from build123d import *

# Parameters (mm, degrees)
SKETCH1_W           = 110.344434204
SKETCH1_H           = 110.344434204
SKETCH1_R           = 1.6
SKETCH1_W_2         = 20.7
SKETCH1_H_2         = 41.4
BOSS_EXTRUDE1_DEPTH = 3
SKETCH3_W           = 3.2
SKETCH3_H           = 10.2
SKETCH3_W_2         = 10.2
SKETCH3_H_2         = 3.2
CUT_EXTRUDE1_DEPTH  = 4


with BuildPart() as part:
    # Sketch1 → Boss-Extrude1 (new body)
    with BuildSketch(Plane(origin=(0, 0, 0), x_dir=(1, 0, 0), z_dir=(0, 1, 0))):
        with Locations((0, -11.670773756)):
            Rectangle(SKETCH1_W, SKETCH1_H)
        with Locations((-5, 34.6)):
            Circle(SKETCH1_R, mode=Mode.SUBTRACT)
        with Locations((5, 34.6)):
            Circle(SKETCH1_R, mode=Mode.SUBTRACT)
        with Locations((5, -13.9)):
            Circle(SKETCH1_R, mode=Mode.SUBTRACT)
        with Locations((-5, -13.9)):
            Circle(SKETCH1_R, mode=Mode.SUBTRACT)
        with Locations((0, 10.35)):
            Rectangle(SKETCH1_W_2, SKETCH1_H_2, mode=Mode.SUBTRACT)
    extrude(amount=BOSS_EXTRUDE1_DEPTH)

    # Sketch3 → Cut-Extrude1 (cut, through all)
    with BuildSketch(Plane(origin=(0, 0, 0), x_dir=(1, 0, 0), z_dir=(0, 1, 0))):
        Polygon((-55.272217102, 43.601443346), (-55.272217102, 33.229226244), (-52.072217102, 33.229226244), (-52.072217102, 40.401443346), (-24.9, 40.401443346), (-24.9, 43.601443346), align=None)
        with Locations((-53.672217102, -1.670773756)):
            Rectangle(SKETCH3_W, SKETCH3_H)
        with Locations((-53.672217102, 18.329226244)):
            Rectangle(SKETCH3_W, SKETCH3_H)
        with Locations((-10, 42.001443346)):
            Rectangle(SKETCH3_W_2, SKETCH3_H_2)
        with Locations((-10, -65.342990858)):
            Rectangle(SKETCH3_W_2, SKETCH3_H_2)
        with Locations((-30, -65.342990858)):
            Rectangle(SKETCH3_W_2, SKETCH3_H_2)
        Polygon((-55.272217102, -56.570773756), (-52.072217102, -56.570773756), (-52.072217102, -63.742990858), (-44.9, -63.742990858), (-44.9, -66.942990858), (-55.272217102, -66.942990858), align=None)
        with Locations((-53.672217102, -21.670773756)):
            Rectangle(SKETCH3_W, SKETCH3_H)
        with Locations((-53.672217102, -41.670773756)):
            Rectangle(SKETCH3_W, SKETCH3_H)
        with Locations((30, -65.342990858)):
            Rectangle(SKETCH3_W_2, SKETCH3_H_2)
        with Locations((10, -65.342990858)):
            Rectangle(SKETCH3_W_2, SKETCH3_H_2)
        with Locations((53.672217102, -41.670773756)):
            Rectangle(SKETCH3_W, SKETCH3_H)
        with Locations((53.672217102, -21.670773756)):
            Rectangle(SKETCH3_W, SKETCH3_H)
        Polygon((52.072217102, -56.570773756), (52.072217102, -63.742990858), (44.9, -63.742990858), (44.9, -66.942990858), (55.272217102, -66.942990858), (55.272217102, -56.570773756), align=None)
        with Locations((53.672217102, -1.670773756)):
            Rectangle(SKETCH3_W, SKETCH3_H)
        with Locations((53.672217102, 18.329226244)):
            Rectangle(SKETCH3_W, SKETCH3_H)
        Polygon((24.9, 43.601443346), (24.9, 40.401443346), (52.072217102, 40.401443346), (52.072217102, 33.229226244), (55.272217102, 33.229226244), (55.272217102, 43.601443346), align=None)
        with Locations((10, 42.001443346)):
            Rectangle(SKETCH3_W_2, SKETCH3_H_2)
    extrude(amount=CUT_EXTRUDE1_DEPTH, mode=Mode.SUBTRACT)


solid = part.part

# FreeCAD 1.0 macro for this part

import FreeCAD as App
import Part
import Sketcher
Q = App.Units.Quantity

doc = App.newDocument("Part")
params = doc.addObject("Spreadsheet::Sheet", "Params")
for row, (alias, value) in enumerate([
    ("sketch1_diameter", "3.2 mm"),
    ("sketch1_width", "20.7 mm"),
    ("sketch1_height", "41.4 mm"),
    ("pad1_length", "3 mm"),
    ("sketch2_width", "3.2 mm"),
    ("sketch2_width2", "10.2 mm"),
], start=1):
    params.set(f"A{row}", alias)
    params.set(f"B{row}", "=" + value)
    params.setAlias(f"B{row}", alias)

body = doc.addObject("PartDesign::Body", "Body")

# Sketch on XZ plane
sketch1 = body.newObject("Sketcher::SketchObject", "Sketch")
sketch1.AttachmentSupport = (doc.getObject("XZ_Plane"), [""])
sketch1.MapMode = "FlatFace"
sketch1.addGeometry([
    Part.LineSegment(App.Vector(-55.172217, -43.501443, 0), App.Vector(-55.172217, 66.842991, 0)),  # 0
    Part.LineSegment(App.Vector(-55.172217, 66.842991, 0), App.Vector(55.172217, 66.842991, 0)),  # 1
    Part.LineSegment(App.Vector(55.172217, 66.842991, 0), App.Vector(55.172217, -43.501443, 0)),  # 2
    Part.LineSegment(App.Vector(55.172217, -43.501443, 0), App.Vector(-55.172217, -43.501443, 0)),  # 3
    Part.Circle(App.Vector(-5, 13.9, 0), App.Vector(0, 0, 1), 1.6),  # 4
    Part.Circle(App.Vector(5, 13.9, 0), App.Vector(0, 0, 1), 1.6),  # 5
    Part.Circle(App.Vector(-5, -34.6, 0), App.Vector(0, 0, 1), 1.6),  # 6
    Part.LineSegment(App.Vector(10.35, 10.35, 0), App.Vector(-10.35, 10.35, 0)),  # 7
    Part.LineSegment(App.Vector(-10.35, 10.35, 0), App.Vector(-10.35, -31.05, 0)),  # 8
    Part.LineSegment(App.Vector(-10.35, -31.05, 0), App.Vector(10.35, -31.05, 0)),  # 9
    Part.LineSegment(App.Vector(10.35, -31.05, 0), App.Vector(10.35, 10.35, 0)),  # 10
    Part.Circle(App.Vector(5, -34.6, 0), App.Vector(0, 0, 1), 1.6),  # 11
], False)
sketch1.addConstraint([
    Sketcher.Constraint("Coincident", 0, 2, 1, 1),
    Sketcher.Constraint("Coincident", 1, 2, 2, 1),
    Sketcher.Constraint("Coincident", 2, 2, 3, 1),
    Sketcher.Constraint("Coincident", 3, 2, 0, 1),
    Sketcher.Constraint("Coincident", 7, 2, 8, 1),
    Sketcher.Constraint("Coincident", 8, 2, 9, 1),
    Sketcher.Constraint("Coincident", 9, 2, 10, 1),
    Sketcher.Constraint("Coincident", 10, 2, 7, 1),
    Sketcher.Constraint("Vertical", 0),
    Sketcher.Constraint("Horizontal", 1),
    Sketcher.Constraint("Vertical", 2),
    Sketcher.Constraint("Horizontal", 3),
    Sketcher.Constraint("Horizontal", 7),
    Sketcher.Constraint("Vertical", 8),
    Sketcher.Constraint("Horizontal", 9),
    Sketcher.Constraint("Vertical", 10),
    Sketcher.Constraint("Equal", 4, 5),
    Sketcher.Constraint("Equal", 5, 6),
    Sketcher.Constraint("Equal", 6, 11),
    Sketcher.Constraint("Symmetric", 4, 3, 5, 3, -2),
    Sketcher.Constraint("Symmetric", 6, 3, 11, 3, -2),
    Sketcher.Constraint("Vertical", 4, 3, 6, 3),
    Sketcher.Constraint("Equal", 3, 0),
    Sketcher.Constraint("Diameter", 4, Q("3.2 mm")),
    Sketcher.Constraint("DistanceX", 7, 2, 7, 1, Q("20.7 mm")),
    Sketcher.Constraint("DistanceY", 8, 2, 8, 1, Q("41.4 mm")),
    Sketcher.Constraint("DistanceX", 4, 3, -1, 1, Q("5 mm")),
    Sketcher.Constraint("DistanceY", -1, 1, 4, 3, Q("13.9 mm")),
    Sketcher.Constraint("DistanceY", 6, 3, -1, 1, Q("34.6 mm")),
    Sketcher.Constraint("DistanceX", 7, 2, -1, 1, Q("10.35 mm")),
    Sketcher.Constraint("DistanceY", -1, 1, 7, 2, Q("10.35 mm")),
    Sketcher.Constraint("DistanceX", 1, 1, 1, 2, Q("110.344434 mm")),
    Sketcher.Constraint("DistanceY", -1, 1, 0, 2, Q("66.842991 mm")),
    Sketcher.Constraint("DistanceX", 0, 2, -1, 1, Q("55.172217 mm")),
])
sketch1.setExpression("Constraints[23]", "Params.sketch1_diameter")
sketch1.setExpression("Constraints[24]", "Params.sketch1_width")
sketch1.setExpression("Constraints[25]", "Params.sketch1_height")
pad1 = body.newObject("PartDesign::Pad", "Pad")
pad1.Profile = sketch1
pad1.setExpression("Length", "Params.pad1_length")
pad1.Reversed = True

# Sketch on XZ plane
sketch2 = body.newObject("Sketcher::SketchObject", "Sketch001")
sketch2.AttachmentSupport = (doc.getObject("XZ_Plane"), [""])
sketch2.MapMode = "FlatFace"
sketch2.addGeometry([
    Part.LineSegment(App.Vector(-55.272217, -43.601443, 0), App.Vector(-55.272217, -33.229226, 0)),  # 0
    Part.LineSegment(App.Vector(-55.272217, -33.229226, 0), App.Vector(-52.072217, -33.229226, 0)),  # 1
    Part.LineSegment(App.Vector(-52.072217, -33.229226, 0), App.Vector(-52.072217, -40.401443, 0)),  # 2
    Part.LineSegment(App.Vector(-52.072217, -40.401443, 0), App.Vector(-24.9, -40.401443, 0)),  # 3
    Part.LineSegment(App.Vector(-24.9, -40.401443, 0), App.Vector(-24.9, -43.601443, 0)),  # 4
    Part.LineSegment(App.Vector(-24.9, -43.601443, 0), App.Vector(-55.272217, -43.601443, 0)),  # 5
    Part.LineSegment(App.Vector(-55.272217, -3.429226, 0), App.Vector(-55.272217, 6.770774, 0)),  # 6
    Part.LineSegment(App.Vector(-55.272217, 6.770774, 0), App.Vector(-52.072217, 6.770774, 0)),  # 7
    Part.LineSegment(App.Vector(-52.072217, 6.770774, 0), App.Vector(-52.072217, -3.429226, 0)),  # 8
    Part.LineSegment(App.Vector(-52.072217, -3.429226, 0), App.Vector(-55.272217, -3.429226, 0)),  # 9
    Part.LineSegment(App.Vector(-55.272217, -23.429226, 0), App.Vector(-55.272217, -13.229226, 0)),  # 10
    Part.LineSegment(App.Vector(-55.272217, -13.229226, 0), App.Vector(-52.072217, -13.229226, 0)),  # 11
    Part.LineSegment(App.Vector(-52.072217, -13.229226, 0), App.Vector(-52.072217, -23.429226, 0)),  # 12
    Part.LineSegment(App.Vector(-52.072217, -23.429226, 0), App.Vector(-55.272217, -23.429226, 0)),  # 13
    Part.LineSegment(App.Vector(-15.1, -43.601443, 0), App.Vector(-15.1, -40.401443, 0)),  # 14
    Part.LineSegment(App.Vector(-15.1, -40.401443, 0), App.Vector(-4.9, -40.401443, 0)),  # 15
    Part.LineSegment(App.Vector(-4.9, -40.401443, 0), App.Vector(-4.9, -43.601443, 0)),  # 16
    Part.LineSegment(App.Vector(-4.9, -43.601443, 0), App.Vector(-15.1, -43.601443, 0)),  # 17
    Part.LineSegment(App.Vector(-15.1, 63.742991, 0), App.Vector(-15.1, 66.942991, 0)),  # 18
    Part.LineSegment(App.Vector(-15.1, 66.942991, 0), App.Vector(-4.9, 66.942991, 0)),  # 19
    Part.LineSegment(App.Vector(-4.9, 66.942991, 0), App.Vector(-4.9, 63.742991, 0)),  # 20
    Part.LineSegment(App.Vector(-4.9, 63.742991, 0), App.Vector(-15.1, 63.742991, 0)),  # 21
    Part.LineSegment(App.Vector(-35.1, 63.742991, 0), App.Vector(-35.1, 66.942991, 0)),  # 22
    Part.LineSegment(App.Vector(-35.1, 66.942991, 0), App.Vector(-24.9, 66.942991, 0)),  # 23
    Part.LineSegment(App.Vector(-24.9, 66.942991, 0), App.Vector(-24.9, 63.742991, 0)),  # 24
    Part.LineSegment(App.Vector(-24.9, 63.742991, 0), App.Vector(-35.1, 63.742991, 0)),  # 25
    Part.LineSegment(App.Vector(-52.072217, 56.570774, 0), App.Vector(-55.272217, 56.570774, 0)),  # 26
    Part.LineSegment(App.Vector(-55.272217, 56.570774, 0), App.Vector(-55.272217, 66.942991, 0)),  # 27
    Part.LineSegment(App.Vector(-55.272217, 66.942991, 0), App.Vector(-44.9, 66.942991, 0)),  # 28
    Part.LineSegment(App.Vector(-44.9, 66.942991, 0), App.Vector(-44.9, 63.742991, 0)),  # 29
    Part.LineSegment(App.Vector(-44.9, 63.742991, 0), App.Vector(-52.072217, 63.742991, 0)),  # 30
    Part.LineSegment(App.Vector(-52.072217, 63.742991, 0), App.Vector(-52.072217, 56.570774, 0)),  # 31
    Part.LineSegment(App.Vector(-55.272217, 16.570774, 0), App.Vector(-55.272217, 26.770774, 0)),  # 32
    Part.LineSegment(App.Vector(-55.272217, 26.770774, 0), App.Vector(-52.072217, 26.770774, 0)),  # 33
    Part.LineSegment(App.Vector(-52.072217, 26.770774, 0), App.Vector(-52.072217, 16.570774, 0)),  # 34
    Part.LineSegment(App.Vector(-52.072217, 16.570774, 0), App.Vector(-55.272217, 16.570774, 0)),  # 35
    Part.LineSegment(App.Vector(-55.272217, 36.570774, 0), App.Vector(-55.272217, 46.770774, 0)),  # 36
    Part.LineSegment(App.Vector(-55.272217, 46.770774, 0), App.Vector(-52.072217, 46.770774, 0)),  # 37
    Part.LineSegment(App.Vector(-52.072217, 46.770774, 0), App.Vector(-52.072217, 36.570774, 0)),  # 38
    Part.LineSegment(App.Vector(-52.072217, 36.570774, 0), App.Vector(-55.272217, 36.570774, 0)),  # 39
    Part.LineSegment(App.Vector(24.9, 63.742991, 0), App.Vector(24.9, 66.942991, 0)),  # 40
    Part.LineSegment(App.Vector(24.9, 66.942991, 0), App.Vector(35.1, 66.942991, 0)),  # 41
    Part.LineSegment(App.Vector(35.1, 66.942991, 0), App.Vector(35.1, 63.742991, 0)),  # 42
    Part.LineSegment(App.Vector(35.1, 63.742991, 0), App.Vector(24.9, 63.742991, 0)),  # 43
    Part.LineSegment(App.Vector(4.9, 63.742991, 0), App.Vector(4.9, 66.942991, 0)),  # 44
    Part.LineSegment(App.Vector(4.9, 66.942991, 0), App.Vector(15.1, 66.942991, 0)),  # 45
    Part.LineSegment(App.Vector(15.1, 66.942991, 0), App.Vector(15.1, 63.742991, 0)),  # 46
    Part.LineSegment(App.Vector(15.1, 63.742991, 0), App.Vector(4.9, 63.742991, 0)),  # 47
    Part.LineSegment(App.Vector(52.072217, 36.570774, 0), App.Vector(52.072217, 46.770774, 0)),  # 48
    Part.LineSegment(App.Vector(52.072217, 46.770774, 0), App.Vector(55.272217, 46.770774, 0)),  # 49
    Part.LineSegment(App.Vector(55.272217, 46.770774, 0), App.Vector(55.272217, 36.570774, 0)),  # 50
    Part.LineSegment(App.Vector(55.272217, 36.570774, 0), App.Vector(52.072217, 36.570774, 0)),  # 51
    Part.LineSegment(App.Vector(52.072217, 16.570774, 0), App.Vector(52.072217, 26.770774, 0)),  # 52
    Part.LineSegment(App.Vector(52.072217, 26.770774, 0), App.Vector(55.272217, 26.770774, 0)),  # 53
    Part.LineSegment(App.Vector(55.272217, 26.770774, 0), App.Vector(55.272217, 16.570774, 0)),  # 54
    Part.LineSegment(App.Vector(55.272217, 16.570774, 0), App.Vector(52.072217, 16.570774, 0)),  # 55
    Part.LineSegment(App.Vector(52.072217, 56.570774, 0), App.Vector(52.072217, 63.742991, 0)),  # 56
    Part.LineSegment(App.Vector(52.072217, 63.742991, 0), App.Vector(44.9, 63.742991, 0)),  # 57
    Part.LineSegment(App.Vector(44.9, 63.742991, 0), App.Vector(44.9, 66.942991, 0)),  # 58
    Part.LineSegment(App.Vector(44.9, 66.942991, 0), App.Vector(55.272217, 66.942991, 0)),  # 59
    Part.LineSegment(App.Vector(55.272217, 66.942991, 0), App.Vector(55.272217, 56.570774, 0)),  # 60
    Part.LineSegment(App.Vector(55.272217, 56.570774, 0), App.Vector(52.072217, 56.570774, 0)),  # 61
    Part.LineSegment(App.Vector(52.072217, -3.429226, 0), App.Vector(52.072217, 6.770774, 0)),  # 62
    Part.LineSegment(App.Vector(52.072217, 6.770774, 0), App.Vector(55.272217, 6.770774, 0)),  # 63
    Part.LineSegment(App.Vector(55.272217, 6.770774, 0), App.Vector(55.272217, -3.429226, 0)),  # 64
    Part.LineSegment(App.Vector(55.272217, -3.429226, 0), App.Vector(52.072217, -3.429226, 0)),  # 65
    Part.LineSegment(App.Vector(52.072217, -23.429226, 0), App.Vector(52.072217, -13.229226, 0)),  # 66
    Part.LineSegment(App.Vector(52.072217, -13.229226, 0), App.Vector(55.272217, -13.229226, 0)),  # 67
    Part.LineSegment(App.Vector(55.272217, -13.229226, 0), App.Vector(55.272217, -23.429226, 0)),  # 68
    Part.LineSegment(App.Vector(55.272217, -23.429226, 0), App.Vector(52.072217, -23.429226, 0)),  # 69
    Part.LineSegment(App.Vector(24.9, -43.601443, 0), App.Vector(24.9, -40.401443, 0)),  # 70
    Part.LineSegment(App.Vector(24.9, -40.401443, 0), App.Vector(52.072217, -40.401443, 0)),  # 71
    Part.LineSegment(App.Vector(52.072217, -40.401443, 0), App.Vector(52.072217, -33.229226, 0)),  # 72
    Part.LineSegment(App.Vector(52.072217, -33.229226, 0), App.Vector(55.272217, -33.229226, 0)),  # 73
    Part.LineSegment(App.Vector(55.272217, -33.229226, 0), App.Vector(55.272217, -43.601443, 0)),  # 74
    Part.LineSegment(App.Vector(55.272217, -43.601443, 0), App.Vector(24.9, -43.601443, 0)),  # 75
    Part.LineSegment(App.Vector(4.9, -43.601443, 0), App.Vector(4.9, -40.401443, 0)),  # 76
    Part.LineSegment(App.Vector(4.9, -40.401443, 0), App.Vector(15.1, -40.401443, 0)),  # 77
    Part.LineSegment(App.Vector(15.1, -40.401443, 0), App.Vector(15.1, -43.601443, 0)),  # 78
    Part.LineSegment(App.Vector(15.1, -43.601443, 0), App.Vector(4.9, -43.601443, 0)),  # 79
], False)
sketch2.addConstraint([
    Sketcher.Constraint("Coincident", 0, 2, 1, 1),
    Sketcher.Constraint("Coincident", 1, 2, 2, 1),
    Sketcher.Constraint("Coincident", 2, 2, 3, 1),
    Sketcher.Constraint("Coincident", 3, 2, 4, 1),
    Sketcher.Constraint("Coincident", 4, 2, 5, 1),
    Sketcher.Constraint("Coincident", 5, 2, 0, 1),
    Sketcher.Constraint("Coincident", 6, 2, 7, 1),
    Sketcher.Constraint("Coincident", 7, 2, 8, 1),
    Sketcher.Constraint("Coincident", 8, 2, 9, 1),
    Sketcher.Constraint("Coincident", 9, 2, 6, 1),
    Sketcher.Constraint("Coincident", 10, 2, 11, 1),
    Sketcher.Constraint("Coincident", 11, 2, 12, 1),
    Sketcher.Constraint("Coincident", 12, 2, 13, 1),
    Sketcher.Constraint("Coincident", 13, 2, 10, 1),
    Sketcher.Constraint("Coincident", 14, 2, 15, 1),
    Sketcher.Constraint("Coincident", 15, 2, 16, 1),
    Sketcher.Constraint("Coincident", 16, 2, 17, 1),
    Sketcher.Constraint("Coincident", 17, 2, 14, 1),
    Sketcher.Constraint("Coincident", 18, 2, 19, 1),
    Sketcher.Constraint("Coincident", 19, 2, 20, 1),
    Sketcher.Constraint("Coincident", 20, 2, 21, 1),
    Sketcher.Constraint("Coincident", 21, 2, 18, 1),
    Sketcher.Constraint("Coincident", 22, 2, 23, 1),
    Sketcher.Constraint("Coincident", 23, 2, 24, 1),
    Sketcher.Constraint("Coincident", 24, 2, 25, 1),
    Sketcher.Constraint("Coincident", 25, 2, 22, 1),
    Sketcher.Constraint("Coincident", 26, 2, 27, 1),
    Sketcher.Constraint("Coincident", 27, 2, 28, 1),
    Sketcher.Constraint("Coincident", 28, 2, 29, 1),
    Sketcher.Constraint("Coincident", 29, 2, 30, 1),
    Sketcher.Constraint("Coincident", 30, 2, 31, 1),
    Sketcher.Constraint("Coincident", 31, 2, 26, 1),
    Sketcher.Constraint("Coincident", 32, 2, 33, 1),
    Sketcher.Constraint("Coincident", 33, 2, 34, 1),
    Sketcher.Constraint("Coincident", 34, 2, 35, 1),
    Sketcher.Constraint("Coincident", 35, 2, 32, 1),
    Sketcher.Constraint("Coincident", 36, 2, 37, 1),
    Sketcher.Constraint("Coincident", 37, 2, 38, 1),
    Sketcher.Constraint("Coincident", 38, 2, 39, 1),
    Sketcher.Constraint("Coincident", 39, 2, 36, 1),
    Sketcher.Constraint("Coincident", 40, 2, 41, 1),
    Sketcher.Constraint("Coincident", 41, 2, 42, 1),
    Sketcher.Constraint("Coincident", 42, 2, 43, 1),
    Sketcher.Constraint("Coincident", 43, 2, 40, 1),
    Sketcher.Constraint("Coincident", 44, 2, 45, 1),
    Sketcher.Constraint("Coincident", 45, 2, 46, 1),
    Sketcher.Constraint("Coincident", 46, 2, 47, 1),
    Sketcher.Constraint("Coincident", 47, 2, 44, 1),
    Sketcher.Constraint("Coincident", 48, 2, 49, 1),
    Sketcher.Constraint("Coincident", 49, 2, 50, 1),
    Sketcher.Constraint("Coincident", 50, 2, 51, 1),
    Sketcher.Constraint("Coincident", 51, 2, 48, 1),
    Sketcher.Constraint("Coincident", 52, 2, 53, 1),
    Sketcher.Constraint("Coincident", 53, 2, 54, 1),
    Sketcher.Constraint("Coincident", 54, 2, 55, 1),
    Sketcher.Constraint("Coincident", 55, 2, 52, 1),
    Sketcher.Constraint("Coincident", 56, 2, 57, 1),
    Sketcher.Constraint("Coincident", 57, 2, 58, 1),
    Sketcher.Constraint("Coincident", 58, 2, 59, 1),
    Sketcher.Constraint("Coincident", 59, 2, 60, 1),
    Sketcher.Constraint("Coincident", 60, 2, 61, 1),
    Sketcher.Constraint("Coincident", 61, 2, 56, 1),
    Sketcher.Constraint("Coincident", 62, 2, 63, 1),
    Sketcher.Constraint("Coincident", 63, 2, 64, 1),
    Sketcher.Constraint("Coincident", 64, 2, 65, 1),
    Sketcher.Constraint("Coincident", 65, 2, 62, 1),
    Sketcher.Constraint("Coincident", 66, 2, 67, 1),
    Sketcher.Constraint("Coincident", 67, 2, 68, 1),
    Sketcher.Constraint("Coincident", 68, 2, 69, 1),
    Sketcher.Constraint("Coincident", 69, 2, 66, 1),
    Sketcher.Constraint("Coincident", 70, 2, 71, 1),
    Sketcher.Constraint("Coincident", 71, 2, 72, 1),
    Sketcher.Constraint("Coincident", 72, 2, 73, 1),
    Sketcher.Constraint("Coincident", 73, 2, 74, 1),
    Sketcher.Constraint("Coincident", 74, 2, 75, 1),
    Sketcher.Constraint("Coincident", 75, 2, 70, 1),
    Sketcher.Constraint("Coincident", 76, 2, 77, 1),
    Sketcher.Constraint("Coincident", 77, 2, 78, 1),
    Sketcher.Constraint("Coincident", 78, 2, 79, 1),
    Sketcher.Constraint("Coincident", 79, 2, 76, 1),
    Sketcher.Constraint("Vertical", 0),
    Sketcher.Constraint("Horizontal", 1),
    Sketcher.Constraint("Vertical", 2),
    Sketcher.Constraint("Horizontal", 3),
    Sketcher.Constraint("Vertical", 4),
    Sketcher.Constraint("Horizontal", 5),
    Sketcher.Constraint("Vertical", 6),
    Sketcher.Constraint("Horizontal", 7),
    Sketcher.Constraint("Vertical", 8),
    Sketcher.Constraint("Horizontal", 9),
    Sketcher.Constraint("Vertical", 10),
    Sketcher.Constraint("Horizontal", 11),
    Sketcher.Constraint("Vertical", 12),
    Sketcher.Constraint("Horizontal", 13),
    Sketcher.Constraint("Vertical", 14),
    Sketcher.Constraint("Horizontal", 15),
    Sketcher.Constraint("Vertical", 16),
    Sketcher.Constraint("Horizontal", 17),
    Sketcher.Constraint("Vertical", 18),
    Sketcher.Constraint("Horizontal", 19),
    Sketcher.Constraint("Vertical", 20),
    Sketcher.Constraint("Horizontal", 21),
    Sketcher.Constraint("Vertical", 22),
    Sketcher.Constraint("Horizontal", 23),
    Sketcher.Constraint("Vertical", 24),
    Sketcher.Constraint("Horizontal", 25),
    Sketcher.Constraint("Horizontal", 26),
    Sketcher.Constraint("Vertical", 27),
    Sketcher.Constraint("Horizontal", 28),
    Sketcher.Constraint("Vertical", 29),
    Sketcher.Constraint("Horizontal", 30),
    Sketcher.Constraint("Vertical", 31),
    Sketcher.Constraint("Vertical", 32),
    Sketcher.Constraint("Horizontal", 33),
    Sketcher.Constraint("Vertical", 34),
    Sketcher.Constraint("Horizontal", 35),
    Sketcher.Constraint("Vertical", 36),
    Sketcher.Constraint("Horizontal", 37),
    Sketcher.Constraint("Vertical", 38),
    Sketcher.Constraint("Horizontal", 39),
    Sketcher.Constraint("Vertical", 40),
    Sketcher.Constraint("Horizontal", 41),
    Sketcher.Constraint("Vertical", 42),
    Sketcher.Constraint("Horizontal", 43),
    Sketcher.Constraint("Vertical", 44),
    Sketcher.Constraint("Horizontal", 45),
    Sketcher.Constraint("Vertical", 46),
    Sketcher.Constraint("Horizontal", 47),
    Sketcher.Constraint("Vertical", 48),
    Sketcher.Constraint("Horizontal", 49),
    Sketcher.Constraint("Vertical", 50),
    Sketcher.Constraint("Horizontal", 51),
    Sketcher.Constraint("Vertical", 52),
    Sketcher.Constraint("Horizontal", 53),
    Sketcher.Constraint("Vertical", 54),
    Sketcher.Constraint("Horizontal", 55),
    Sketcher.Constraint("Vertical", 56),
    Sketcher.Constraint("Horizontal", 57),
    Sketcher.Constraint("Vertical", 58),
    Sketcher.Constraint("Horizontal", 59),
    Sketcher.Constraint("Vertical", 60),
    Sketcher.Constraint("Horizontal", 61),
    Sketcher.Constraint("Vertical", 62),
    Sketcher.Constraint("Horizontal", 63),
    Sketcher.Constraint("Vertical", 64),
    Sketcher.Constraint("Horizontal", 65),
    Sketcher.Constraint("Vertical", 66),
    Sketcher.Constraint("Horizontal", 67),
    Sketcher.Constraint("Vertical", 68),
    Sketcher.Constraint("Horizontal", 69),
    Sketcher.Constraint("Vertical", 70),
    Sketcher.Constraint("Horizontal", 71),
    Sketcher.Constraint("Vertical", 72),
    Sketcher.Constraint("Horizontal", 73),
    Sketcher.Constraint("Vertical", 74),
    Sketcher.Constraint("Horizontal", 75),
    Sketcher.Constraint("Vertical", 76),
    Sketcher.Constraint("Horizontal", 77),
    Sketcher.Constraint("Vertical", 78),
    Sketcher.Constraint("Horizontal", 79),
    Sketcher.Constraint("Symmetric", 23, 2, 40, 2, -2),
    Sketcher.Constraint("Symmetric", 25, 2, 42, 2, -2),
    Sketcher.Constraint("Symmetric", 19, 2, 44, 2, -2),
    Sketcher.Constraint("Symmetric", 21, 2, 46, 2, -2),
    Sketcher.Constraint("Symmetric", 37, 2, 48, 2, -2),
    Sketcher.Constraint("Symmetric", 39, 2, 50, 2, -2),
    Sketcher.Constraint("Symmetric", 33, 2, 52, 2, -2),
    Sketcher.Constraint("Symmetric", 35, 2, 54, 2, -2),
    Sketcher.Constraint("Symmetric", 30, 2, 56, 2, -2),
    Sketcher.Constraint("Symmetric", 28, 2, 58, 2, -2),
    Sketcher.Constraint("Symmetric", 26, 2, 60, 2, -2),
    Sketcher.Constraint("Symmetric", 7, 2, 62, 2, -2),
    Sketcher.Constraint("Symmetric", 9, 2, 64, 2, -2),
    Sketcher.Constraint("Symmetric", 11, 2, 66, 2, -2),
    Sketcher.Constraint("Symmetric", 13, 2, 68, 2, -2),
    Sketcher.Constraint("Symmetric", 3, 2, 70, 2, -2),
    Sketcher.Constraint("Symmetric", 1, 2, 72, 2, -2),
    Sketcher.Constraint("Symmetric", 5, 2, 74, 2, -2),
    Sketcher.Constraint("Symmetric", 15, 2, 76, 2, -2),
    Sketcher.Constraint("Symmetric", 17, 2, 78, 2, -2),
    Sketcher.Constraint("Horizontal", 3, 2, 14, 2),
    Sketcher.Constraint("Horizontal", 5, 2, 16, 2),
    Sketcher.Constraint("Horizontal", 19, 2, 22, 2),
    Sketcher.Constraint("Horizontal", 21, 2, 24, 2),
    Sketcher.Constraint("Horizontal", 23, 2, 27, 2),
    Sketcher.Constraint("Horizontal", 25, 2, 29, 2),
    Sketcher.Constraint("Vertical", 5, 2, 6, 2),
    Sketcher.Constraint("Vertical", 2, 2, 7, 2),
    Sketcher.Constraint("Vertical", 9, 2, 10, 2),
    Sketcher.Constraint("Vertical", 8, 2, 11, 2),
    Sketcher.Constraint("Vertical", 17, 2, 18, 2),
    Sketcher.Constraint("Vertical", 16, 2, 19, 2),
    Sketcher.Constraint("Vertical", 4, 2, 23, 2),
    Sketcher.Constraint("Vertical", 13, 2, 26, 2),
    Sketcher.Constraint("Vertical", 12, 2, 30, 2),
    Sketcher.Constraint("Vertical", 27, 2, 32, 2),
    Sketcher.Constraint("Vertical", 31, 2, 33, 2),
    Sketcher.Constraint("Vertical", 35, 2, 36, 2),
    Sketcher.Constraint("Vertical", 34, 2, 37, 2),
    Sketcher.Constraint("Equal", 21, 23),
    Sketcher.Constraint("Equal", 59, 0),
    Sketcher.Constraint("Equal", 57, 2),
    Sketcher.Constraint("Equal", 79, 6),
    Sketcher.Constraint("Equal", 8, 10),
    Sketcher.Constraint("Equal", 16, 18),
    Sketcher.Constraint("Equal", 0, 27),
    Sketcher.Constraint("Equal", 12, 32),
    Sketcher.Constraint("Equal", 34, 36),
    Sketcher.Constraint("DistanceX", 1, 1, 1, 2, Q("3.2 mm")),
    Sketcher.Constraint("DistanceX", 15, 1, 15, 2, Q("10.2 mm")),
    Sketcher.Constraint("DistanceX", 3, 2, -1, 1, Q("24.9 mm")),
    Sketcher.Constraint("DistanceX", 14, 2, -1, 1, Q("15.1 mm")),
    Sketcher.Constraint("DistanceX", 28, 2, -1, 1, Q("44.9 mm")),
    Sketcher.Constraint("DistanceX", 3, 1, 3, 2, Q("27.172217 mm")),
    Sketcher.Constraint("DistanceY", -1, 1, 18, 2, Q("66.942991 mm")),
    Sketcher.Constraint("DistanceY", 0, 2, -1, 1, Q("33.229226 mm")),
    Sketcher.Constraint("DistanceY", -1, 1, 6, 2, Q("6.770774 mm")),
    Sketcher.Constraint("DistanceY", 10, 2, -1, 1, Q("13.229226 mm")),
    Sketcher.Constraint("DistanceY", -1, 1, 32, 2, Q("26.770774 mm")),
    Sketcher.Constraint("DistanceY", -1, 1, 36, 2, Q("46.770774 mm")),
])
sketch2.setExpression("Constraints[208]", "Params.sketch2_width")
sketch2.setExpression("Constraints[209]", "Params.sketch2_width2")
pocket1 = body.newObject("PartDesign::Pocket", "Pocket")
pocket1.Profile = sketch2
pocket1.Type = "ThroughAll"

doc.recompute()
